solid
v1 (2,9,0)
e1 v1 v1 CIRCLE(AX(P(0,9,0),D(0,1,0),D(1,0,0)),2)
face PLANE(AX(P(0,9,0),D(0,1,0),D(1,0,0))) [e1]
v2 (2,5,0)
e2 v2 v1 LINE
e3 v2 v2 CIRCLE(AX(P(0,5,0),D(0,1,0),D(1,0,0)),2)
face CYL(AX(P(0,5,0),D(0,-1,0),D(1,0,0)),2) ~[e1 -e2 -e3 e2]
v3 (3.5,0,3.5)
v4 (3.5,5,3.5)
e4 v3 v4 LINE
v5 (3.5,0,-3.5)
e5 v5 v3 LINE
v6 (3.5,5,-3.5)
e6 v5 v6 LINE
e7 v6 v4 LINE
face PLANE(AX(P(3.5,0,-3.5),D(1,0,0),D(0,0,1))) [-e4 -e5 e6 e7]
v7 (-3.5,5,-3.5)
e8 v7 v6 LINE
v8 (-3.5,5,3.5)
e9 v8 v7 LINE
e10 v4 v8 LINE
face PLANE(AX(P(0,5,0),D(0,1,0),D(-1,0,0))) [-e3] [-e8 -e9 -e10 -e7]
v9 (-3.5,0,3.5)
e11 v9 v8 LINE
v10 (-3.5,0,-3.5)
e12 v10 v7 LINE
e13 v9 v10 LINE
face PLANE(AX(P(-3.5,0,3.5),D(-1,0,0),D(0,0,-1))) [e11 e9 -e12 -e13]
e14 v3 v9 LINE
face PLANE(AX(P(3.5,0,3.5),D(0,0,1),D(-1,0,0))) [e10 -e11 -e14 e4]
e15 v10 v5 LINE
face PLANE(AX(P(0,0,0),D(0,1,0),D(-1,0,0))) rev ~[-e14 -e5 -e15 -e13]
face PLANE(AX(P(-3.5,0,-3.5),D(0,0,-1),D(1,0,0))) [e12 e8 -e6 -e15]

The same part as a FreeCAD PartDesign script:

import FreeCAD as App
import Part
import Sketcher

V = App.Vector


def add_polygon(sketch, points):
    """Adds a closed chain of lines whose ends are joined by coincident constraints."""
    first, n = sketch.GeometryCount, len(points)
    for a, b in zip(points, points[1:] + points[:1]):
        sketch.addGeometry(Part.LineSegment(App.Vector(*a, 0), App.Vector(*b, 0)), False)
    for i in range(n):
        sketch.addConstraint(Sketcher.Constraint("Coincident", first + i, 2, first + (i + 1) % n, 1))

doc = App.newDocument("Part")
params = doc.addObject("Spreadsheet::Sheet", "Params")
for row, (alias, value) in enumerate([
    ("sketch1_width", "7 mm"),
    ("pad1_length", "5 mm"),
    ("sketch2_diameter", "4 mm"),
    ("pad2_length", "4 mm"),
], start=1):
    params.set(f"A{row}", alias)
    params.set(f"B{row}", "=" + value)
    params.setAlias(f"B{row}", alias)

body = doc.addObject("PartDesign::Body", "Body")

# Sketch on XZ plane
sketch1 = body.newObject("Sketcher::SketchObject", "Sketch")
sketch1.AttachmentSupport = (doc.getObject("XZ_Plane"), [""])
sketch1.MapMode = "FlatFace"
add_polygon(sketch1, [(-3.5, 3.5), (3.5, 3.5), (3.5, -3.5), (-3.5, -3.5)])  # lines 0-3
sketch1.addConstraint(Sketcher.Constraint("Horizontal", 0))
sketch1.addConstraint(Sketcher.Constraint("Vertical", 1))
sketch1.addConstraint(Sketcher.Constraint("Horizontal", 2))
sketch1.addConstraint(Sketcher.Constraint("Vertical", 3))
sketch1.addConstraint(Sketcher.Constraint("Symmetric", 0, 2, 2, 2, -1, 1))
sketch1.addConstraint(Sketcher.Constraint("Equal", 2, 1))
sketch1.addConstraint(Sketcher.Constraint("DistanceX", 0, 1, 0, 2, 7.0))
sketch1.setExpression("Constraints[10]", "Params.sketch1_width")
pad1 = body.newObject("PartDesign::Pad", "Pad")
pad1.Profile = sketch1
pad1.setExpression("Length", "Params.pad1_length")
pad1.Reversed = True

# Sketch on XZ plane
sketch2 = body.newObject("Sketcher::SketchObject", "Sketch001")
sketch2.AttachmentSupport = (doc.getObject("XZ_Plane"), [""])
sketch2.MapMode = "FlatFace"
sketch2.AttachmentOffset = App.Placement(V(0, 0, -5), App.Rotation())
sketch2.addGeometry(Part.Circle(V(0, 0, 0), V(0, 0, 1), 2), False)
sketch2.addConstraint(Sketcher.Constraint("Coincident", 0, 3, -1, 1))
sketch2.addConstraint(Sketcher.Constraint("Diameter", 0, 4.0))
sketch2.setExpression("Constraints[1]", "Params.sketch2_diameter")
pad2 = body.newObject("PartDesign::Pad", "Pad001")
pad2.Profile = sketch2
pad2.setExpression("Length", "Params.pad2_length")
pad2.Reversed = True

doc.recompute()
